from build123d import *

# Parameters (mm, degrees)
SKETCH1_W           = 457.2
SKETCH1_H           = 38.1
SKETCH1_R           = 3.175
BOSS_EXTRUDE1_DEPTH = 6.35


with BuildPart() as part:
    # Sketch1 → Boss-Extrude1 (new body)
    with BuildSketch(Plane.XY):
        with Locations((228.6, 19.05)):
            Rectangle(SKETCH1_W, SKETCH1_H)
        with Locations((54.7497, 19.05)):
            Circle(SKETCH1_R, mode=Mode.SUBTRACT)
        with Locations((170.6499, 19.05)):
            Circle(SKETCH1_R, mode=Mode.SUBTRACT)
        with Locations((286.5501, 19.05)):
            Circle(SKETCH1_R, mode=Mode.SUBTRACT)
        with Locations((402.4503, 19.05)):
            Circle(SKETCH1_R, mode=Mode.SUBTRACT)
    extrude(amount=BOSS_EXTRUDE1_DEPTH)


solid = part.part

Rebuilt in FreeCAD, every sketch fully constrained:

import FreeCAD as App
import Part
import Sketcher
from FreeCAD import Vector
Q = App.Units.Quantity

doc = App.newDocument("Part")
body = doc.addObject("PartDesign::Body", "Body")

sketch1 = doc.addObject("Sketcher::SketchObject", "Sketch")
body.addObject(sketch1)
sketch1.AttachmentSupport = (doc.XY_Plane, [""])
sketch1.MapMode = "FlatFace"
sketch1.addGeometry(Part.LineSegment(Vector(0, 38.1, 0), Vector(0, 0, 0)), False)
sketch1.addGeometry(Part.LineSegment(Vector(0, 0, 0), Vector(457.2, 0, 0)), False)
sketch1.addGeometry(Part.LineSegment(Vector(457.2, 0, 0), Vector(457.2, 38.1, 0)), False)
sketch1.addGeometry(Part.LineSegment(Vector(457.2, 38.1, 0), Vector(0, 38.1, 0)), False)
sketch1.addGeometry(Part.Circle(Vector(54.7, 19.1, 0), Vector(0, 0, 1), 3.2), False)
sketch1.addGeometry(Part.Circle(Vector(170.6, 19.1, 0), Vector(0, 0, 1), 3.2), False)
sketch1.addGeometry(Part.Circle(Vector(286.6, 19.1, 0), Vector(0, 0, 1), 3.2), False)
sketch1.addGeometry(Part.Circle(Vector(402.5, 19.1, 0), Vector(0, 0, 1), 3.2), False)
sketch1.addConstraint(Sketcher.Constraint("Coincident", 0, 2, 1, 1))
sketch1.addConstraint(Sketcher.Constraint("Coincident", 1, 2, 2, 1))
sketch1.addConstraint(Sketcher.Constraint("Coincident", 2, 2, 3, 1))
sketch1.addConstraint(Sketcher.Constraint("Coincident", 3, 2, 0, 1))
sketch1.addConstraint(Sketcher.Constraint("Vertical", 0))
sketch1.addConstraint(Sketcher.Constraint("Horizontal", 1))
sketch1.addConstraint(Sketcher.Constraint("Vertical", 2))
sketch1.addConstraint(Sketcher.Constraint("Horizontal", 3))
sketch1.addConstraint(Sketcher.Constraint("Coincident", 0, 2, -1, 1))
sketch1.addConstraint(Sketcher.Constraint("Equal", 4, 5))
sketch1.addConstraint(Sketcher.Constraint("Equal", 5, 6))
sketch1.addConstraint(Sketcher.Constraint("Equal", 6, 7))
sketch1.addConstraint(Sketcher.Constraint("Horizontal", 4, 3, 5, 3))
sketch1.addConstraint(Sketcher.Constraint("Horizontal", 5, 3, 6, 3))
sketch1.addConstraint(Sketcher.Constraint("Horizontal", 6, 3, 7, 3))
sketch1.addConstraint(Sketcher.Constraint("Diameter", 4, Q("0.25 in")))
sketch1.addConstraint(Sketcher.Constraint("DistanceX", 1, 1, 1, 2, Q("18 in")))
sketch1.addConstraint(Sketcher.Constraint("DistanceY", 0, 2, 0, 1, Q("1.5 in")))
sketch1.addConstraint(Sketcher.Constraint("DistanceY", -1, 1, 4, 3, Q("0.75 in")))
sketch1.addConstraint(Sketcher.Constraint("DistanceX", 4, 3, 5, 3, Q("4.563 in")))
sketch1.addConstraint(Sketcher.Constraint("DistanceX", 5, 3, 6, 3, Q("4.563 in")))
sketch1.addConstraint(Sketcher.Constraint("DistanceX", 6, 3, 7, 3, Q("4.563 in")))
sketch1.addConstraint(Sketcher.Constraint("DistanceX", -1, 1, 4, 3, Q("2.1555 in")))
pad1 = doc.addObject("PartDesign::Pad", "Pad")
body.addObject(pad1)
pad1.Profile = sketch1
pad1.Length = Q("0.25 in")

doc.recompute()
